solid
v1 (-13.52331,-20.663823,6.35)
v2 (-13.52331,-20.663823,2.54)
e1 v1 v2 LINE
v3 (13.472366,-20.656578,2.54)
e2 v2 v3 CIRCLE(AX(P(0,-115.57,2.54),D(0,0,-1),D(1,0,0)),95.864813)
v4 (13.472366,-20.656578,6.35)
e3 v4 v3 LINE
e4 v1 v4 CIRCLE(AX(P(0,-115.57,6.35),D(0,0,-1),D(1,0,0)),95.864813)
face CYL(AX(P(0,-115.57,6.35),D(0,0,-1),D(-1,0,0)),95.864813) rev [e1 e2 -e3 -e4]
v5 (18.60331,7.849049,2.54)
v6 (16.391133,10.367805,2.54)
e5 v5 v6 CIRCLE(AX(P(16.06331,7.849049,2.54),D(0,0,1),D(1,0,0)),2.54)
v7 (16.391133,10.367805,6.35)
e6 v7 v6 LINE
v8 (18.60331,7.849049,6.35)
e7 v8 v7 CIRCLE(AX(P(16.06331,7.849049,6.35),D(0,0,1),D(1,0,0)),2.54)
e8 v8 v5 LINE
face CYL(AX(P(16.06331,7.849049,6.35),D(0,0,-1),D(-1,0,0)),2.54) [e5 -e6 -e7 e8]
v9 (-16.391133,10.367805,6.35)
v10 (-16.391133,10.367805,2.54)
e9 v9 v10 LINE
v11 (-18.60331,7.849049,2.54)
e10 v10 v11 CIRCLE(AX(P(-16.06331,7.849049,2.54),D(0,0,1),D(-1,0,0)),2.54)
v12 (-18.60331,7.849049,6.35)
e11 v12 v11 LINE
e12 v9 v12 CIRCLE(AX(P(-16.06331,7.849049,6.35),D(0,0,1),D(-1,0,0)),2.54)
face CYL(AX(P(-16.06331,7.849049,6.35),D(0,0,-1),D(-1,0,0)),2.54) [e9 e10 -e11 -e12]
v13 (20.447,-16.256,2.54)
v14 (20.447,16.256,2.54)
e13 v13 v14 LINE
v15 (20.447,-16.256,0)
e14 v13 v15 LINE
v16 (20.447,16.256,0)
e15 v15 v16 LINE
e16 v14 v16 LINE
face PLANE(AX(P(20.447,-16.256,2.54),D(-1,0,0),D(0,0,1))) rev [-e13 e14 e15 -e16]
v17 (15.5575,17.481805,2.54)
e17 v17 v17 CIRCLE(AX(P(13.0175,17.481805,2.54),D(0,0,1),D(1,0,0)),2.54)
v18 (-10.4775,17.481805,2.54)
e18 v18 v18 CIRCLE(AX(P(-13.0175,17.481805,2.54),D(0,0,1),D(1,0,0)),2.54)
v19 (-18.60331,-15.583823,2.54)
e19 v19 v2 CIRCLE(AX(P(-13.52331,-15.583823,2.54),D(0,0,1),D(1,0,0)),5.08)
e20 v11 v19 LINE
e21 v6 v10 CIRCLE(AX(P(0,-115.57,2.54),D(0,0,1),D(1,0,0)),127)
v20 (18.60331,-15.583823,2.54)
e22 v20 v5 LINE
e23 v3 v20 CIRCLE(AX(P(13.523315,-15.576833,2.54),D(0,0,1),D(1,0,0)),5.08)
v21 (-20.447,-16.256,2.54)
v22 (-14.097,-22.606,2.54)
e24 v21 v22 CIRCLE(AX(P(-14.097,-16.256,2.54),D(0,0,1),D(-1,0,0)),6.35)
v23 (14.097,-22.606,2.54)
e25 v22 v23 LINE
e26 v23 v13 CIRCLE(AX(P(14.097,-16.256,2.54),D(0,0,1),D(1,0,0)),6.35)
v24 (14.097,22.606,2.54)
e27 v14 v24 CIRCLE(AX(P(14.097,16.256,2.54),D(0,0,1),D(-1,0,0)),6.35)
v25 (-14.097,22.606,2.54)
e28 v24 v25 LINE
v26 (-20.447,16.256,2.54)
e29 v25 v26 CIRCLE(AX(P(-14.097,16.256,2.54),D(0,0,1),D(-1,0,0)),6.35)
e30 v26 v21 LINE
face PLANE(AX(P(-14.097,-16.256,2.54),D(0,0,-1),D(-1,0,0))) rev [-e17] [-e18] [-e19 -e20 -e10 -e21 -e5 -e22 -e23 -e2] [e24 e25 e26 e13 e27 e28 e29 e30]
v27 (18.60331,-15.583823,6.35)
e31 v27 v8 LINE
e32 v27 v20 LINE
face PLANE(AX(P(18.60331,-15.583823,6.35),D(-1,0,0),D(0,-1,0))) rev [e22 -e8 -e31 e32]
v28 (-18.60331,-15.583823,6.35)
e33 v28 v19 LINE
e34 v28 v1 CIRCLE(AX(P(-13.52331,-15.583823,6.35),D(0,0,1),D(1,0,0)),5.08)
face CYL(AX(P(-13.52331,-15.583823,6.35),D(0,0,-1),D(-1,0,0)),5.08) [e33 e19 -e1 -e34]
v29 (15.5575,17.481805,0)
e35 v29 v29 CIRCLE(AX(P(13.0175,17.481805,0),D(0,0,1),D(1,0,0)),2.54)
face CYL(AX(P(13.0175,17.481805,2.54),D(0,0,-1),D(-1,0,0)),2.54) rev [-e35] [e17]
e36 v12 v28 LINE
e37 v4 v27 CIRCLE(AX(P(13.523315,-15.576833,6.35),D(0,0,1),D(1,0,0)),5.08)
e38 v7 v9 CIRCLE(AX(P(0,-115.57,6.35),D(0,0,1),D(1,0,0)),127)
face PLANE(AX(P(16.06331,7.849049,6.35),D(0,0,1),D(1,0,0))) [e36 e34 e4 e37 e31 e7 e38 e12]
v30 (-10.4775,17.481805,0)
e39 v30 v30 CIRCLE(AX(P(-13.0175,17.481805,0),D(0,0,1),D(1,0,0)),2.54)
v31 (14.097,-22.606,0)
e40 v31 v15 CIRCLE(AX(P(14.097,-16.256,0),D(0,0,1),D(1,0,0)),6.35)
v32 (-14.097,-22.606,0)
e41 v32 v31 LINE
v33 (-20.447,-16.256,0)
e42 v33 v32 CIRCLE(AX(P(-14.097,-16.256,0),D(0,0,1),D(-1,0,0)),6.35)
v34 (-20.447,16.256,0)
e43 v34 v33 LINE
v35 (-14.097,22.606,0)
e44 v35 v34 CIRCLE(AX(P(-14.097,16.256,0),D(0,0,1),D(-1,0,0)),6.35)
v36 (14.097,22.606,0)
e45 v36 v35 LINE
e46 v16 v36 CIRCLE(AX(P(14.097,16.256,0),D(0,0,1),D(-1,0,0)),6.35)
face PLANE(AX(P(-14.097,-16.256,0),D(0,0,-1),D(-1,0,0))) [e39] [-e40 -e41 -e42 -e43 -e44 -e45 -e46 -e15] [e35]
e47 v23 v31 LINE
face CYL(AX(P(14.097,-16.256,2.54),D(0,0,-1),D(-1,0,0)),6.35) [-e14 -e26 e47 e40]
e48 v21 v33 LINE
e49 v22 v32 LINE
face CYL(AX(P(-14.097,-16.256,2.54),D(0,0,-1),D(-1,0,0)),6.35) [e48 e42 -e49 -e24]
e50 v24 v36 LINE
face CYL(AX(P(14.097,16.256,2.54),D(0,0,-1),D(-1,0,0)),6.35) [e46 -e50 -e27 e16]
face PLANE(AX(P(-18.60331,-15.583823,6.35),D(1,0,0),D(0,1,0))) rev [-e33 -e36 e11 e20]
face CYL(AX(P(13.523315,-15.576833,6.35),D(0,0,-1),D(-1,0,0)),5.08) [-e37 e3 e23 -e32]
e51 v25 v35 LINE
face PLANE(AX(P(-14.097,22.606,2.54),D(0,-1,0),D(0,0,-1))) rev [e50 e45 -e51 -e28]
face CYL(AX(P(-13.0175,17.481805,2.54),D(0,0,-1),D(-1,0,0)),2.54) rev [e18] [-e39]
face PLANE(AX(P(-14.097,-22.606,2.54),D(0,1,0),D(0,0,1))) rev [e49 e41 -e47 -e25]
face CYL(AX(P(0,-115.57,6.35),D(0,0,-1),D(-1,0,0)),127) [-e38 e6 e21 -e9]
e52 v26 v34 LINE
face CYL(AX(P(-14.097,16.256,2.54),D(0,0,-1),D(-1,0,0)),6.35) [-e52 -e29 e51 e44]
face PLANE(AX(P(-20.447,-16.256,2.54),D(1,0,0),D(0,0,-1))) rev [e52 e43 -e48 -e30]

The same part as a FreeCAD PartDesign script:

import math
import FreeCAD as App
import Part
import Sketcher
Q = App.Units.Quantity

doc = App.newDocument("Part")
body = doc.addObject("PartDesign::Body", "Body")

# Sketch on XY plane
sketch1 = body.newObject("Sketcher::SketchObject", "Sketch")
sketch1.AttachmentSupport = (doc.getObject("XY_Plane"), [""])
sketch1.MapMode = "FlatFace"
sketch1.addGeometry([
    Part.LineSegment(App.Vector(-14.1, -22.6, 0), App.Vector(14.1, -22.6, 0)),  # 0
    Part.ArcOfCircle(Part.Circle(App.Vector(14.1, -16.3, 0), App.Vector(0, 0, 1), 6.3), math.radians(-90), math.radians(0)),  # 1
    Part.LineSegment(App.Vector(20.4, -16.3, 0), App.Vector(20.4, 16.3, 0)),  # 2
    Part.ArcOfCircle(Part.Circle(App.Vector(14.1, 16.3, 0), App.Vector(0, 0, 1), 6.3), math.radians(0), math.radians(90)),  # 3
    Part.LineSegment(App.Vector(14.1, 22.6, 0), App.Vector(-14.1, 22.6, 0)),  # 4
    Part.ArcOfCircle(Part.Circle(App.Vector(-14.1, 16.3, 0), App.Vector(0, 0, 1), 6.3), math.radians(90), math.radians(180)),  # 5
    Part.LineSegment(App.Vector(-20.4, 16.3, 0), App.Vector(-20.4, -16.3, 0)),  # 6
    Part.ArcOfCircle(Part.Circle(App.Vector(-14.1, -16.3, 0), App.Vector(0, 0, 1), 6.3), math.radians(180), math.radians(270)),  # 7
    Part.Circle(App.Vector(-13, 17.5, 0), App.Vector(0, 0, 1), 2.5),  # 8
    Part.Circle(App.Vector(13, 17.5, 0), App.Vector(0, 0, 1), 2.5),  # 9
], False)
sketch1.addConstraint([
    Sketcher.Constraint("Tangent", 0, 2, 1, 1),
    Sketcher.Constraint("Tangent", 1, 2, 2, 1),
    Sketcher.Constraint("Tangent", 2, 2, 3, 1),
    Sketcher.Constraint("Tangent", 3, 2, 4, 1),
    Sketcher.Constraint("Tangent", 4, 2, 5, 1),
    Sketcher.Constraint("Tangent", 5, 2, 6, 1),
    Sketcher.Constraint("Tangent", 6, 2, 7, 1),
    Sketcher.Constraint("Tangent", 7, 2, 0, 1),
    Sketcher.Constraint("Horizontal", 0),
    Sketcher.Constraint("Vertical", 2),
    Sketcher.Constraint("Horizontal", 4),
    Sketcher.Constraint("Vertical", 6),
    Sketcher.Constraint("Equal", 1, 3),
    Sketcher.Constraint("Equal", 3, 5),
    Sketcher.Constraint("Equal", 5, 7),
    Sketcher.Constraint("Equal", 8, 9),
    Sketcher.Constraint("Symmetric", 1, 3, 5, 3, -1, 1),
    Sketcher.Constraint("Symmetric", 8, 3, 9, 3, -2),
    Sketcher.Constraint("Diameter", 8, Q("0.2 in")),
    Sketcher.Constraint("Radius", 1, Q("0.25 in")),
    Sketcher.Constraint("DistanceX", 0, 1, 0, 2, Q("1.11 in")),
    Sketcher.Constraint("DistanceY", 2, 1, 2, 2, Q("1.28 in")),
    Sketcher.Constraint("DistanceX", 8, 3, 9, 3, Q("1.025 in")),
    Sketcher.Constraint("DistanceY", -1, 1, 8, 3, Q("17.481805 mm")),
])
pad1 = body.newObject("PartDesign::Pad", "Pad")
pad1.Profile = sketch1
pad1.Length = Q("0.1 in")

# Sketch on XY plane
sketch2 = body.newObject("Sketcher::SketchObject", "Sketch001")
sketch2.AttachmentSupport = (doc.getObject("XY_Plane"), [""])
sketch2.MapMode = "FlatFace"
sketch2.AttachmentOffset = App.Placement(App.Vector(0, 0, 0.1 * 25.4), App.Rotation())
sketch2.addGeometry([
    Part.LineSegment(App.Vector(-18.6, 7.8, 0), App.Vector(-18.6, -15.6, 0)),  # 0
    Part.ArcOfCircle(Part.Circle(App.Vector(-13.5, -15.6, 0), App.Vector(0, 0, 1), 5.1), math.radians(180), math.radians(270)),  # 1
    Part.ArcOfCircle(Part.Circle(App.Vector(0, -115.6, 0), App.Vector(0, 0, 1), 95.9), math.radians(81.92), math.radians(98.11)),  # 2
    Part.ArcOfCircle(Part.Circle(App.Vector(13.5, -15.6, 0), App.Vector(0, 0, 1), 5.1), math.radians(-91), math.radians(0)),  # 3
    Part.LineSegment(App.Vector(18.6, -15.6, 0), App.Vector(18.6, 7.8, 0)),  # 4
    Part.ArcOfCircle(Part.Circle(App.Vector(16.1, 7.8, 0), App.Vector(0, 0, 1), 2.5), math.radians(0), math.radians(83)),  # 5
    Part.ArcOfCircle(Part.Circle(App.Vector(0, -115.6, 0), App.Vector(0, 0, 1), 127), math.radians(82.58), math.radians(97.42)),  # 6
    Part.ArcOfCircle(Part.Circle(App.Vector(-16.1, 7.8, 0), App.Vector(0, 0, 1), 2.5), math.radians(97), math.radians(180)),  # 7
], False)
sketch2.addConstraint([
    Sketcher.Constraint("Tangent", 0, 2, 1, 1),
    Sketcher.Constraint("Coincident", 1, 2, 2, 2),
    Sketcher.Constraint("Coincident", 2, 1, 3, 1),
    Sketcher.Constraint("Coincident", 3, 2, 4, 1),
    Sketcher.Constraint("Tangent", 4, 2, 5, 1),
    Sketcher.Constraint("Tangent", 5, 2, 6, 1),
    Sketcher.Constraint("Tangent", 6, 2, 7, 1),
    Sketcher.Constraint("Tangent", 7, 2, 0, 1),
    Sketcher.Constraint("Vertical", 0),
    Sketcher.Constraint("Vertical", 4),
    Sketcher.Constraint("Coincident", 6, 3, 2, 3),
    Sketcher.Constraint("Equal", 1, 3),
    Sketcher.Constraint("Equal", 5, 7),
    Sketcher.Constraint("Symmetric", 5, 3, 7, 3, -2),
    Sketcher.Constraint("Horizontal", 0, 2, 3, 2),
    Sketcher.Constraint("Radius", 6, Q("5 in")),
    Sketcher.Constraint("Radius", 1, Q("0.2 in")),
    Sketcher.Constraint("Radius", 5, Q("0.1 in")),
    Sketcher.Constraint("DistanceX", 0, 2, 1, 2, Q("0.2 in")),
    Sketcher.Constraint("DistanceY", 2, 3, -1, 1, Q("4.55 in")),
    Sketcher.Constraint("Radius", 2, Q("95.864813 mm")),
    Sketcher.Constraint("DistanceY", 0, 2, 0, 1, Q("23.432872 mm")),
    Sketcher.Constraint("DistanceY", 1, 3, 3, 3, Q("0.00699 mm")),
])
pad2 = body.newObject("PartDesign::Pad", "Pad001")
pad2.Profile = sketch2
pad2.Length = Q("0.15 in")

doc.recompute()
